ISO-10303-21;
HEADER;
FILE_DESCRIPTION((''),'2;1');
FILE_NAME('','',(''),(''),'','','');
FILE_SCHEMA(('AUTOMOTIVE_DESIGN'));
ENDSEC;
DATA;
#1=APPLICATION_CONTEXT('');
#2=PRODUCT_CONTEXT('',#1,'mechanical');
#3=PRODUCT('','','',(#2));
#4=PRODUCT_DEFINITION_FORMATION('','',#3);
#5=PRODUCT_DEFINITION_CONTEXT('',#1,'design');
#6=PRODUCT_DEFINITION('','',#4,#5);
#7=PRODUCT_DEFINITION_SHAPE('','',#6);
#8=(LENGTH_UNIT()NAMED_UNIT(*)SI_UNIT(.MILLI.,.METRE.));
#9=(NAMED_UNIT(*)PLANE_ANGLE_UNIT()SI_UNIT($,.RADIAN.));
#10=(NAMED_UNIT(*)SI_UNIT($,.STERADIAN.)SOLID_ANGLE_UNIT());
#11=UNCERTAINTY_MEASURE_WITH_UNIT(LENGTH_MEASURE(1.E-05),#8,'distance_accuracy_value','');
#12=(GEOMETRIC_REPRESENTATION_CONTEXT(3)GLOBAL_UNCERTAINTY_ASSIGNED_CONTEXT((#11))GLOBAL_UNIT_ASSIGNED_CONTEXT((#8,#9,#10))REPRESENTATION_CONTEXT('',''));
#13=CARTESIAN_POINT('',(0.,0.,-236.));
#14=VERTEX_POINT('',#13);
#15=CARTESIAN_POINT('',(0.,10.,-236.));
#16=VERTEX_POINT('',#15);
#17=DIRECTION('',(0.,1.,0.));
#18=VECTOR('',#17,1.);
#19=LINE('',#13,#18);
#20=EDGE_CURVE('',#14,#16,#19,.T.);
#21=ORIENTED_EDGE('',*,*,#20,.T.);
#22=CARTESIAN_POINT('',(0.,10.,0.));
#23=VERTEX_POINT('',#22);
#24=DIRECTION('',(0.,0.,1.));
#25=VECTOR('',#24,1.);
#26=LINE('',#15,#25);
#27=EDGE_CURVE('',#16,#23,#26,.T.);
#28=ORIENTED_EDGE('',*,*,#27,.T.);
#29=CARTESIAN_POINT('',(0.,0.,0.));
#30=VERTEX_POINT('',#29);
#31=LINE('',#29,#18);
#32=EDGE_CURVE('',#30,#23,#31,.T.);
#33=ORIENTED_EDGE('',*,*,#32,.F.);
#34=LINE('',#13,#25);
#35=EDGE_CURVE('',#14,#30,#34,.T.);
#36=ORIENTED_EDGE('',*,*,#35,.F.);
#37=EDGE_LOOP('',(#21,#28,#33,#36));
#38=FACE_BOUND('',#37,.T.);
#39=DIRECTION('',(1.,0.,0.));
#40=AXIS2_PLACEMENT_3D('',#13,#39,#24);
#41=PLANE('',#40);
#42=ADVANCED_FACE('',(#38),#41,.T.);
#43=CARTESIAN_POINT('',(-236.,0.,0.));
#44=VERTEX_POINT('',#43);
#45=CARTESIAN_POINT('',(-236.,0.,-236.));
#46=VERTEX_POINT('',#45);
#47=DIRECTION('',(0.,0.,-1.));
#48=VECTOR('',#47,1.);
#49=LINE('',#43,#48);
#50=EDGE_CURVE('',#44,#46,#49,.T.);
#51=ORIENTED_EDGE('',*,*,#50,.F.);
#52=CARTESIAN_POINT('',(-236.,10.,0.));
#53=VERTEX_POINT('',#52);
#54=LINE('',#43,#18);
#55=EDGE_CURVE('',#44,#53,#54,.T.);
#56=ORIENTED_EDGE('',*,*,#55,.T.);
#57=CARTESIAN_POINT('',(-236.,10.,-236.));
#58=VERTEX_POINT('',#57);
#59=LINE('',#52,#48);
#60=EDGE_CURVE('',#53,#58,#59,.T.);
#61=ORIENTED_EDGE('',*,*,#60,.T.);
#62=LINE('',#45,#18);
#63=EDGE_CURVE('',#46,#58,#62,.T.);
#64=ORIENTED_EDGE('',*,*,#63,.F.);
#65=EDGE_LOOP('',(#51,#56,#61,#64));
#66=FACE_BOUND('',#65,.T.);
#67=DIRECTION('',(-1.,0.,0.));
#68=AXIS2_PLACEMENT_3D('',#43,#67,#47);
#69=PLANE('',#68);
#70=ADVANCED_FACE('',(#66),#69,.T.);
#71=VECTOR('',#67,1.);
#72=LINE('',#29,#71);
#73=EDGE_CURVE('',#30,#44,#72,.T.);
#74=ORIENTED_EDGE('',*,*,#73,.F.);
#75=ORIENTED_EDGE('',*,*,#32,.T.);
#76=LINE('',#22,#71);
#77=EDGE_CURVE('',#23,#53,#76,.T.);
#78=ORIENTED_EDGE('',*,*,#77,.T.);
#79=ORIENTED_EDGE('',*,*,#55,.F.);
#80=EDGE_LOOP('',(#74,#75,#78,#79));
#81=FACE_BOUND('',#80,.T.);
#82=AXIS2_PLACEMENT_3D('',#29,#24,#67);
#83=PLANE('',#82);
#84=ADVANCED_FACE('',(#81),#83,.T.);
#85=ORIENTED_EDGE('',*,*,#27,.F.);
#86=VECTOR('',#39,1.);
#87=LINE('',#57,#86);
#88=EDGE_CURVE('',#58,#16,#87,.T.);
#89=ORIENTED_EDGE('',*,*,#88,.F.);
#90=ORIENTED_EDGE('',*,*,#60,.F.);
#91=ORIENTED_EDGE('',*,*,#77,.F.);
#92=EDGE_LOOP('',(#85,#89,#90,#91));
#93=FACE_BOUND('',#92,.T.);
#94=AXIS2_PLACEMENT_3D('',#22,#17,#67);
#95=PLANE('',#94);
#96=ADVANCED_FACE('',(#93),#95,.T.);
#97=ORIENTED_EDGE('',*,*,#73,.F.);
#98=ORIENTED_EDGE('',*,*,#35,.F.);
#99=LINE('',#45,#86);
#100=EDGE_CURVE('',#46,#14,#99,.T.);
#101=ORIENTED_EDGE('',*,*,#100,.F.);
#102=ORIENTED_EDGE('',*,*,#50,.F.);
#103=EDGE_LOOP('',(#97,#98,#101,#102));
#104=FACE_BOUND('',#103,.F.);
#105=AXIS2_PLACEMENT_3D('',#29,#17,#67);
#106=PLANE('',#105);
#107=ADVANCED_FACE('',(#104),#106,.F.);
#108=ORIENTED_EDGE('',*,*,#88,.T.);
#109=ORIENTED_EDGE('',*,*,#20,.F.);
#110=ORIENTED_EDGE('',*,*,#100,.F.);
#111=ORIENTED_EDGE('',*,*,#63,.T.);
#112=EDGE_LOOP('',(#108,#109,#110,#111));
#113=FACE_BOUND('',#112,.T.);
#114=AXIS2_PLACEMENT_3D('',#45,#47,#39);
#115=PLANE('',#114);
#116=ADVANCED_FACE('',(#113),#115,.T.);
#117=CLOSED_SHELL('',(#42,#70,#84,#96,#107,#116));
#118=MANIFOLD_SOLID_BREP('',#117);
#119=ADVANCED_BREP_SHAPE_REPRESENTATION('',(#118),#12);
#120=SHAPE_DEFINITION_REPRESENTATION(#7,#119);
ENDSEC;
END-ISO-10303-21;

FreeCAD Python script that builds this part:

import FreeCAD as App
import Part
import Sketcher
from FreeCAD import Vector

doc = App.newDocument("Part")
body = doc.addObject("PartDesign::Body", "Body")

# Sketch on XZ plane
sketch1 = body.newObject("Sketcher::SketchObject", "Sketch")
sketch1.AttachmentSupport = (doc.getObject("XZ_Plane"), [""])
sketch1.MapMode = "FlatFace"
sketch1.addGeometry([
    Part.LineSegment(Vector(-236, 0, 0), Vector(0, 0, 0)),
    Part.LineSegment(Vector(0, 0, 0), Vector(0, -236, 0)),
    Part.LineSegment(Vector(0, -236, 0), Vector(-236, -236, 0)),
    Part.LineSegment(Vector(-236, -236, 0), Vector(-236, 0, 0)),
], False)
sketch1.addConstraint([
    Sketcher.Constraint("Coincident", 0, 2, 1, 1),
    Sketcher.Constraint("Coincident", 1, 2, 2, 1),
    Sketcher.Constraint("Coincident", 2, 2, 3, 1),
    Sketcher.Constraint("Coincident", 3, 2, 0, 1),
    Sketcher.Constraint("Horizontal", 0),
    Sketcher.Constraint("Vertical", 1),
    Sketcher.Constraint("Horizontal", 2),
    Sketcher.Constraint("Vertical", 3),
    Sketcher.Constraint("Coincident", 0, 2, -1, 1),
    Sketcher.Constraint("Equal", 2, 1),
    Sketcher.Constraint("DistanceX", 0, 1, 0, 2, 236.0),
])
pad1 = body.newObject("PartDesign::Pad", "Pad")
pad1.Profile = sketch1
pad1.Length = 10
pad1.Reversed = True

doc.recompute()
